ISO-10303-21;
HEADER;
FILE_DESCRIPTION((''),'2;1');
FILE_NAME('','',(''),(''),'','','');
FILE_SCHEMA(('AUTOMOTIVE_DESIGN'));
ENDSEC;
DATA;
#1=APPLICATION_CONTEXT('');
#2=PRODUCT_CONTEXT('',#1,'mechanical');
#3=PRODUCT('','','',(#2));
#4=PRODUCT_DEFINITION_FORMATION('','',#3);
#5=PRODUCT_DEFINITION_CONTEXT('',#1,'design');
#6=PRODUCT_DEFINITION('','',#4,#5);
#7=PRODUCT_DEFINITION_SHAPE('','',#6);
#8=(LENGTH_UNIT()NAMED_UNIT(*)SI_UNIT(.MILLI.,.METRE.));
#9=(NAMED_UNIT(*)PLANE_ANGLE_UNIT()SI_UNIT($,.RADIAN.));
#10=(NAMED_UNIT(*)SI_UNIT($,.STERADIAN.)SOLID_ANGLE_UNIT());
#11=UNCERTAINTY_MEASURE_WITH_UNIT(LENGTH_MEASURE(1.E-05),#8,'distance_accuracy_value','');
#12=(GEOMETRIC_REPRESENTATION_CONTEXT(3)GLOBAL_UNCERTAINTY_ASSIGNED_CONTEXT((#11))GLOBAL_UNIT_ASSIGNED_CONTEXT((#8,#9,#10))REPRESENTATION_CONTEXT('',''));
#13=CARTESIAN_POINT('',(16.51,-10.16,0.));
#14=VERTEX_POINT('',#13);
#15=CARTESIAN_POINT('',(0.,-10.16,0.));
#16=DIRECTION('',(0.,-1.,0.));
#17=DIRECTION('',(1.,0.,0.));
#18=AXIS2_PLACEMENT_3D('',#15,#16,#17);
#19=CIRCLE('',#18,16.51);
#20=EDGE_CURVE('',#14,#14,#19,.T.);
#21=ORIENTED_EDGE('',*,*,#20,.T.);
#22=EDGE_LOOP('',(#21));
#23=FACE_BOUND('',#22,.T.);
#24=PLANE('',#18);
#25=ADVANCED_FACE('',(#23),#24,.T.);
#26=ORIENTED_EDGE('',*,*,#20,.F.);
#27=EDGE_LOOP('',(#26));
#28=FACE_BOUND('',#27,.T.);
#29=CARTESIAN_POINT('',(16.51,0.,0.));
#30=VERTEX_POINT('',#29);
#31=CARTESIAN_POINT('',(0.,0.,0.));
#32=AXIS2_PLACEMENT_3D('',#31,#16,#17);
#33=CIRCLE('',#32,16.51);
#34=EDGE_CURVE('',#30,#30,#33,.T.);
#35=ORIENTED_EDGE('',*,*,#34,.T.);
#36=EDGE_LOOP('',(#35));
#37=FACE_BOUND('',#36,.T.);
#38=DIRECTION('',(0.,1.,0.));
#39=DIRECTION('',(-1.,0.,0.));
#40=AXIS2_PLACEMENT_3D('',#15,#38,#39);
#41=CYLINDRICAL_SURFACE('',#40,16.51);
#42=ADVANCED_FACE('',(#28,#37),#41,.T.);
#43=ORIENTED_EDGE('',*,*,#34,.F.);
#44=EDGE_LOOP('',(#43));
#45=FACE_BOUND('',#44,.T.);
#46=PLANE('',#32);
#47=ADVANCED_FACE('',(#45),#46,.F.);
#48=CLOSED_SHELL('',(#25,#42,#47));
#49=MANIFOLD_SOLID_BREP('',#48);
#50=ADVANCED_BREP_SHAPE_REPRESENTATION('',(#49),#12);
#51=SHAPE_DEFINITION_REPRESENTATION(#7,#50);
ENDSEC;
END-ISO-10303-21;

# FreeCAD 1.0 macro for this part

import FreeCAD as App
import Part
import Sketcher
Q = App.Units.Quantity

doc = App.newDocument("Part")
body = doc.addObject("PartDesign::Body", "Body")

# Sketch on XY plane
sketch1 = body.newObject("Sketcher::SketchObject", "Sketch")
sketch1.AttachmentSupport = (doc.getObject("XY_Plane"), [""])
sketch1.MapMode = "FlatFace"
sketch1.addGeometry(Part.Circle(App.Vector(0, 0, 0), App.Vector(0, 0, 1), 17), False)
sketch1.addConstraint([
    Sketcher.Constraint("Coincident", 0, 3, -1, 1),
    Sketcher.Constraint("Diameter", 0, Q("1.3 in")),
])
pad1 = body.newObject("PartDesign::Pad", "Pad")
pad1.Profile = sketch1
pad1.Length = Q("0.4 in")
body2 = doc.addObject("PartDesign::Body", "Body001")
doc.recompute()

body.Placement = App.Placement(App.Vector(0, 0, 0), App.Rotation(App.Vector(1, 0, 0), 90))
boolean = body2.newObject("PartDesign::Boolean", "Boolean")
boolean.Type = "Fuse"
boolean.addObjects([body])

doc.recompute()
